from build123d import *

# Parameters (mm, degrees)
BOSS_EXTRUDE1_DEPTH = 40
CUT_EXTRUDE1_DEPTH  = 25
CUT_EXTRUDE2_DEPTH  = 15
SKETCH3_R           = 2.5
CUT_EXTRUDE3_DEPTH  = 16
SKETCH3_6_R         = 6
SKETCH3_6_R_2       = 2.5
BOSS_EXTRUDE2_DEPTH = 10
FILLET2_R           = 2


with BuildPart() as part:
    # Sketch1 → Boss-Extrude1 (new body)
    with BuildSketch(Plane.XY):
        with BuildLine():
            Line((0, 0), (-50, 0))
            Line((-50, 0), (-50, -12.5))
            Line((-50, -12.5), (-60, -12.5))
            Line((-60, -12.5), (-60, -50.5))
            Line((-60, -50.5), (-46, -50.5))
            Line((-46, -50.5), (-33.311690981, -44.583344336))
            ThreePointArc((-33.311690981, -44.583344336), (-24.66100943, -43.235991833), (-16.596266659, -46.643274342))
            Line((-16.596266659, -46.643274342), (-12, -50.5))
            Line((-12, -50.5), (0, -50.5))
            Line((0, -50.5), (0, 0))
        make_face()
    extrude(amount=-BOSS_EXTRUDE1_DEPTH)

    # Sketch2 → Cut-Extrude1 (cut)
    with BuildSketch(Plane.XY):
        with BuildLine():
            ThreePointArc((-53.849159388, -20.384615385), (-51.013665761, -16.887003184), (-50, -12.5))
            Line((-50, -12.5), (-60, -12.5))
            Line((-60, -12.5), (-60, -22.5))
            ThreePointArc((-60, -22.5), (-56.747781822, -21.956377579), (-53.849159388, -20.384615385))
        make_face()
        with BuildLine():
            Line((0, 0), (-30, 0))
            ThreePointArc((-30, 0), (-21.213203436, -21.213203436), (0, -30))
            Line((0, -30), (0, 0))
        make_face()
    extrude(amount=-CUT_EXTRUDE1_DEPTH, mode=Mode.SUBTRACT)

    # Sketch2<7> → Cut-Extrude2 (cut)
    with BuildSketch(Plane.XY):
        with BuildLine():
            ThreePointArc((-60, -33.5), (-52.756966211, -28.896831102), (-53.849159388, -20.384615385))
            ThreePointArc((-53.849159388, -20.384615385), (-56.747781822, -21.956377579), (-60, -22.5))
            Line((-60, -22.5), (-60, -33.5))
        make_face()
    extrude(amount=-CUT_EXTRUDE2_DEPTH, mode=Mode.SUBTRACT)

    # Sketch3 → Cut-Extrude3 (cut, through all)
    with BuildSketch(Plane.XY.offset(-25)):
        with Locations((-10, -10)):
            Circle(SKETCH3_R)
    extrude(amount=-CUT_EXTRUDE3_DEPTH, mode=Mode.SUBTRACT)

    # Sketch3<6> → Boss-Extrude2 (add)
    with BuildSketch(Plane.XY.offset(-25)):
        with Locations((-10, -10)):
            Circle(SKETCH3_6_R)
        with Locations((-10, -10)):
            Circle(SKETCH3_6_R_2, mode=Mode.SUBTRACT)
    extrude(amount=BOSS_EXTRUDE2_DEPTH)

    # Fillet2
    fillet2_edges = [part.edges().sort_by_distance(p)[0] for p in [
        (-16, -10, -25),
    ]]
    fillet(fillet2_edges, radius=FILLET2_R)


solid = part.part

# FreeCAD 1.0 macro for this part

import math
import FreeCAD as App
import Part
import Sketcher

V = App.Vector
Q = App.Units.Quantity


def edges_at(feature, points):
    """Names of the edges that pass closest to the given points."""
    edges = feature.Shape.Edges
    near = lambda p: min(range(len(edges)), key=lambda i: edges[i].distToShape(Part.Vertex(*p))[0])
    return sorted({f"Edge{near(p) + 1}" for p in points})

doc = App.newDocument("Part")
body = doc.addObject("PartDesign::Body", "Body")

# Sketch on XY plane
sketch1 = body.newObject("Sketcher::SketchObject", "Sketch")
sketch1.AttachmentSupport = (doc.getObject("XY_Plane"), [""])
sketch1.MapMode = "FlatFace"
sketch1.addGeometry(Part.LineSegment(V(0, 0, 0), V(-50, 0, 0)), False)
sketch1.addGeometry(Part.LineSegment(V(-50, 0, 0), V(-50, -12, 0)), False)
sketch1.addGeometry(Part.LineSegment(V(-50, -12, 0), V(-60, -12, 0)), False)
sketch1.addGeometry(Part.LineSegment(V(-60, -12, 0), V(-60, -50, 0)), False)
sketch1.addGeometry(Part.LineSegment(V(-60, -50, 0), V(-46, -50, 0)), False)
sketch1.addGeometry(Part.LineSegment(V(-46, -50, 0), V(-33, -45, 0)), False)
sketch1.addGeometry(Part.ArcOfCircle(Part.Circle(V(-27, -59, 0), V(0, 0, 1), 16), math.radians(51), math.radians(115)), False)
sketch1.addGeometry(Part.LineSegment(V(-17, -47, 0), V(-12, -50, 0)), False)
sketch1.addGeometry(Part.LineSegment(V(-12, -50, 0), V(0, -50, 0)), False)
sketch1.addGeometry(Part.LineSegment(V(0, -50, 0), V(0, 0, 0)), False)
sketch1.addConstraint(Sketcher.Constraint("Coincident", 0, 2, 1, 1))
sketch1.addConstraint(Sketcher.Constraint("Coincident", 1, 2, 2, 1))
sketch1.addConstraint(Sketcher.Constraint("Coincident", 2, 2, 3, 1))
sketch1.addConstraint(Sketcher.Constraint("Coincident", 3, 2, 4, 1))
sketch1.addConstraint(Sketcher.Constraint("Coincident", 4, 2, 5, 1))
sketch1.addConstraint(Sketcher.Constraint("Coincident", 5, 2, 6, 2))
sketch1.addConstraint(Sketcher.Constraint("Coincident", 6, 1, 7, 1))
sketch1.addConstraint(Sketcher.Constraint("Coincident", 7, 2, 8, 1))
sketch1.addConstraint(Sketcher.Constraint("Coincident", 8, 2, 9, 1))
sketch1.addConstraint(Sketcher.Constraint("Coincident", 9, 2, 0, 1))
sketch1.addConstraint(Sketcher.Constraint("Horizontal", 0))
sketch1.addConstraint(Sketcher.Constraint("Vertical", 1))
sketch1.addConstraint(Sketcher.Constraint("Horizontal", 2))
sketch1.addConstraint(Sketcher.Constraint("Vertical", 3))
sketch1.addConstraint(Sketcher.Constraint("Horizontal", 4))
sketch1.addConstraint(Sketcher.Constraint("Horizontal", 8))
sketch1.addConstraint(Sketcher.Constraint("Vertical", 9))
sketch1.addConstraint(Sketcher.Constraint("Coincident", 9, 2, -1, 1))
sketch1.addConstraint(Sketcher.Constraint("Horizontal", 4, 2, 7, 2))
sketch1.addConstraint(Sketcher.Constraint("Radius", 6, Q("16 mm")))
sketch1.addConstraint(Sketcher.Constraint("DistanceX", 0, 2, 0, 1, Q("50 mm")))
sketch1.addConstraint(Sketcher.Constraint("DistanceX", 2, 2, 2, 1, Q("10 mm")))
sketch1.addConstraint(Sketcher.Constraint("DistanceX", 4, 1, 4, 2, Q("14 mm")))
sketch1.addConstraint(Sketcher.Constraint("DistanceX", 8, 1, 8, 2, Q("12 mm")))
sketch1.addConstraint(Sketcher.Constraint("DistanceY", 3, 2, 3, 1, Q("38 mm")))
sketch1.addConstraint(Sketcher.Constraint("Angle", 5, Q("25 deg")))
sketch1.addConstraint(Sketcher.Constraint("Angle", 7, Q("-40 deg")))
sketch1.addConstraint(Sketcher.Constraint("Distance", 5, Q("14 mm")))
sketch1.addConstraint(Sketcher.Constraint("Distance", 7, Q("6 mm")))
sketch1.addConstraint(Sketcher.Constraint("DistanceY", 1, 2, 1, 1, Q("12.5 mm")))
pad1 = body.newObject("PartDesign::Pad", "Pad")
pad1.Profile = sketch1
pad1.Length = 40
pad1.Reversed = True

# Sketch on XY plane
sketch2 = body.newObject("Sketcher::SketchObject", "Sketch001")
sketch2.AttachmentSupport = (doc.getObject("XY_Plane"), [""])
sketch2.MapMode = "FlatFace"
sketch2.addGeometry(Part.ArcOfCircle(Part.Circle(V(-60, -12, 0), V(0, 0, 1), 10), math.radians(-52), math.radians(0)), False)
sketch2.addGeometry(Part.LineSegment(V(-50, -12, 0), V(-60, -12, 0)), False)
sketch2.addGeometry(Part.LineSegment(V(-60, -12, 0), V(-60, -22, 0)), False)
sketch2.addGeometry(Part.ArcOfCircle(Part.Circle(V(-60, -12, 0), V(0, 0, 1), 10), math.radians(-90), math.radians(-52)), False)
sketch2.addGeometry(Part.LineSegment(V(0, 0, 0), V(-30, 0, 0)), False)
sketch2.addGeometry(Part.ArcOfCircle(Part.Circle(V(0, 0, 0), V(0, 0, 1), 30), math.radians(180), math.radians(270)), False)
sketch2.addGeometry(Part.LineSegment(V(0, -30, 0), V(0, 0, 0)), False)
sketch2.addConstraint(Sketcher.Constraint("Coincident", 0, 2, 1, 1))
sketch2.addConstraint(Sketcher.Constraint("Coincident", 1, 2, 2, 1))
sketch2.addConstraint(Sketcher.Constraint("Coincident", 2, 2, 3, 1))
sketch2.addConstraint(Sketcher.Constraint("Tangent", 3, 2, 0, 1))
sketch2.addConstraint(Sketcher.Constraint("Coincident", 4, 2, 5, 1))
sketch2.addConstraint(Sketcher.Constraint("Coincident", 5, 2, 6, 1))
sketch2.addConstraint(Sketcher.Constraint("Coincident", 6, 2, 4, 1))
sketch2.addConstraint(Sketcher.Constraint("Horizontal", 1))
sketch2.addConstraint(Sketcher.Constraint("Vertical", 2))
sketch2.addConstraint(Sketcher.Constraint("Horizontal", 4))
sketch2.addConstraint(Sketcher.Constraint("Vertical", 6))
sketch2.addConstraint(Sketcher.Constraint("Coincident", 5, 3, -1, 1))
sketch2.addConstraint(Sketcher.Constraint("Coincident", 6, 2, -1, 1))
sketch2.addConstraint(Sketcher.Constraint("Coincident", 1, 2, 0, 3))
sketch2.addConstraint(Sketcher.Constraint("Equal", 0, 3))
sketch2.addConstraint(Sketcher.Constraint("Radius", 0, Q("10 mm")))
sketch2.addConstraint(Sketcher.Constraint("Radius", 5, Q("30 mm")))
sketch2.addConstraint(Sketcher.Constraint("DistanceX", 0, 3, -1, 1, Q("60 mm")))
sketch2.addConstraint(Sketcher.Constraint("DistanceY", 0, 3, -1, 1, Q("12.5 mm")))
sketch2.addConstraint(Sketcher.Constraint("DistanceX", 3, 2, -1, 1, Q("53.849159 mm")))
pocket1 = body.newObject("PartDesign::Pocket", "Pocket")
pocket1.Profile = sketch2
pocket1.Length = 25

# Sketch on XY plane
sketch3 = body.newObject("Sketcher::SketchObject", "Sketch002")
sketch3.AttachmentSupport = (doc.getObject("XY_Plane"), [""])
sketch3.MapMode = "FlatFace"
sketch3.addGeometry(Part.ArcOfCircle(Part.Circle(V(-60, -26, 0), V(0, 0, 1), 8), math.radians(-90), math.radians(40)), False)
sketch3.addGeometry(Part.ArcOfCircle(Part.Circle(V(-60, -12, 0), V(0, 0, 1), 10), math.radians(-90), math.radians(-52)), False)
sketch3.addGeometry(Part.LineSegment(V(-60, -22, 0), V(-60, -34, 0)), False)
sketch3.addConstraint(Sketcher.Constraint("Coincident", 0, 2, 1, 2))
sketch3.addConstraint(Sketcher.Constraint("Coincident", 1, 1, 2, 1))
sketch3.addConstraint(Sketcher.Constraint("Coincident", 2, 2, 0, 1))
sketch3.addConstraint(Sketcher.Constraint("Vertical", 2))
sketch3.addConstraint(Sketcher.Constraint("Vertical", 0, 3, 1, 3))
sketch3.addConstraint(Sketcher.Constraint("Vertical", 0, 3, 1, 1))
sketch3.addConstraint(Sketcher.Constraint("Radius", 0, Q("8 mm")))
sketch3.addConstraint(Sketcher.Constraint("Radius", 1, Q("10 mm")))
sketch3.addConstraint(Sketcher.Constraint("DistanceY", 2, 2, 2, 1, Q("11 mm")))
sketch3.addConstraint(Sketcher.Constraint("DistanceX", 0, 3, -1, 1, Q("60 mm")))
sketch3.addConstraint(Sketcher.Constraint("DistanceY", 0, 3, -1, 1, Q("25.5 mm")))
pocket2 = body.newObject("PartDesign::Pocket", "Pocket001")
pocket2.Profile = sketch3
pocket2.Length = 15

# Sketch on XY plane
sketch4 = body.newObject("Sketcher::SketchObject", "Sketch003")
sketch4.AttachmentSupport = (doc.getObject("XY_Plane"), [""])
sketch4.MapMode = "FlatFace"
sketch4.AttachmentOffset = App.Placement(V(0, 0, -25), App.Rotation())
sketch4.addGeometry(Part.Circle(V(-10, -10, 0), V(0, 0, 1), 2.5), False)
sketch4.addConstraint(Sketcher.Constraint("Diameter", 0, Q("5 mm")))
sketch4.addConstraint(Sketcher.Constraint("DistanceX", 0, 3, -1, 1, Q("10 mm")))
sketch4.addConstraint(Sketcher.Constraint("DistanceY", 0, 3, -1, 1, Q("10 mm")))
pocket3 = body.newObject("PartDesign::Pocket", "Pocket002")
pocket3.Profile = sketch4
pocket3.Type = "ThroughAll"

# Sketch on XY plane
sketch5 = body.newObject("Sketcher::SketchObject", "Sketch004")
sketch5.AttachmentSupport = (doc.getObject("XY_Plane"), [""])
sketch5.MapMode = "FlatFace"
sketch5.AttachmentOffset = App.Placement(V(0, 0, -25), App.Rotation())
sketch5.addGeometry(Part.Circle(V(-10, -10, 0), V(0, 0, 1), 6), False)
sketch5.addGeometry(Part.Circle(V(-10, -10, 0), V(0, 0, 1), 2.5), False)
sketch5.addConstraint(Sketcher.Constraint("Coincident", 1, 3, 0, 3))
sketch5.addConstraint(Sketcher.Constraint("Diameter", 0, Q("12 mm")))
sketch5.addConstraint(Sketcher.Constraint("Diameter", 1, Q("5 mm")))
sketch5.addConstraint(Sketcher.Constraint("DistanceX", 0, 3, -1, 1, Q("10 mm")))
sketch5.addConstraint(Sketcher.Constraint("DistanceY", 0, 3, -1, 1, Q("10 mm")))
pad2 = body.newObject("PartDesign::Pad", "Pad001")
pad2.Profile = sketch5
pad2.Length = 10
doc.recompute()

fillet = body.newObject("PartDesign::Fillet", "Fillet")
fillet.Base = (pad2, edges_at(pad2, [(-16, -10, -25)]))
fillet.Radius = 2

doc.recompute()
